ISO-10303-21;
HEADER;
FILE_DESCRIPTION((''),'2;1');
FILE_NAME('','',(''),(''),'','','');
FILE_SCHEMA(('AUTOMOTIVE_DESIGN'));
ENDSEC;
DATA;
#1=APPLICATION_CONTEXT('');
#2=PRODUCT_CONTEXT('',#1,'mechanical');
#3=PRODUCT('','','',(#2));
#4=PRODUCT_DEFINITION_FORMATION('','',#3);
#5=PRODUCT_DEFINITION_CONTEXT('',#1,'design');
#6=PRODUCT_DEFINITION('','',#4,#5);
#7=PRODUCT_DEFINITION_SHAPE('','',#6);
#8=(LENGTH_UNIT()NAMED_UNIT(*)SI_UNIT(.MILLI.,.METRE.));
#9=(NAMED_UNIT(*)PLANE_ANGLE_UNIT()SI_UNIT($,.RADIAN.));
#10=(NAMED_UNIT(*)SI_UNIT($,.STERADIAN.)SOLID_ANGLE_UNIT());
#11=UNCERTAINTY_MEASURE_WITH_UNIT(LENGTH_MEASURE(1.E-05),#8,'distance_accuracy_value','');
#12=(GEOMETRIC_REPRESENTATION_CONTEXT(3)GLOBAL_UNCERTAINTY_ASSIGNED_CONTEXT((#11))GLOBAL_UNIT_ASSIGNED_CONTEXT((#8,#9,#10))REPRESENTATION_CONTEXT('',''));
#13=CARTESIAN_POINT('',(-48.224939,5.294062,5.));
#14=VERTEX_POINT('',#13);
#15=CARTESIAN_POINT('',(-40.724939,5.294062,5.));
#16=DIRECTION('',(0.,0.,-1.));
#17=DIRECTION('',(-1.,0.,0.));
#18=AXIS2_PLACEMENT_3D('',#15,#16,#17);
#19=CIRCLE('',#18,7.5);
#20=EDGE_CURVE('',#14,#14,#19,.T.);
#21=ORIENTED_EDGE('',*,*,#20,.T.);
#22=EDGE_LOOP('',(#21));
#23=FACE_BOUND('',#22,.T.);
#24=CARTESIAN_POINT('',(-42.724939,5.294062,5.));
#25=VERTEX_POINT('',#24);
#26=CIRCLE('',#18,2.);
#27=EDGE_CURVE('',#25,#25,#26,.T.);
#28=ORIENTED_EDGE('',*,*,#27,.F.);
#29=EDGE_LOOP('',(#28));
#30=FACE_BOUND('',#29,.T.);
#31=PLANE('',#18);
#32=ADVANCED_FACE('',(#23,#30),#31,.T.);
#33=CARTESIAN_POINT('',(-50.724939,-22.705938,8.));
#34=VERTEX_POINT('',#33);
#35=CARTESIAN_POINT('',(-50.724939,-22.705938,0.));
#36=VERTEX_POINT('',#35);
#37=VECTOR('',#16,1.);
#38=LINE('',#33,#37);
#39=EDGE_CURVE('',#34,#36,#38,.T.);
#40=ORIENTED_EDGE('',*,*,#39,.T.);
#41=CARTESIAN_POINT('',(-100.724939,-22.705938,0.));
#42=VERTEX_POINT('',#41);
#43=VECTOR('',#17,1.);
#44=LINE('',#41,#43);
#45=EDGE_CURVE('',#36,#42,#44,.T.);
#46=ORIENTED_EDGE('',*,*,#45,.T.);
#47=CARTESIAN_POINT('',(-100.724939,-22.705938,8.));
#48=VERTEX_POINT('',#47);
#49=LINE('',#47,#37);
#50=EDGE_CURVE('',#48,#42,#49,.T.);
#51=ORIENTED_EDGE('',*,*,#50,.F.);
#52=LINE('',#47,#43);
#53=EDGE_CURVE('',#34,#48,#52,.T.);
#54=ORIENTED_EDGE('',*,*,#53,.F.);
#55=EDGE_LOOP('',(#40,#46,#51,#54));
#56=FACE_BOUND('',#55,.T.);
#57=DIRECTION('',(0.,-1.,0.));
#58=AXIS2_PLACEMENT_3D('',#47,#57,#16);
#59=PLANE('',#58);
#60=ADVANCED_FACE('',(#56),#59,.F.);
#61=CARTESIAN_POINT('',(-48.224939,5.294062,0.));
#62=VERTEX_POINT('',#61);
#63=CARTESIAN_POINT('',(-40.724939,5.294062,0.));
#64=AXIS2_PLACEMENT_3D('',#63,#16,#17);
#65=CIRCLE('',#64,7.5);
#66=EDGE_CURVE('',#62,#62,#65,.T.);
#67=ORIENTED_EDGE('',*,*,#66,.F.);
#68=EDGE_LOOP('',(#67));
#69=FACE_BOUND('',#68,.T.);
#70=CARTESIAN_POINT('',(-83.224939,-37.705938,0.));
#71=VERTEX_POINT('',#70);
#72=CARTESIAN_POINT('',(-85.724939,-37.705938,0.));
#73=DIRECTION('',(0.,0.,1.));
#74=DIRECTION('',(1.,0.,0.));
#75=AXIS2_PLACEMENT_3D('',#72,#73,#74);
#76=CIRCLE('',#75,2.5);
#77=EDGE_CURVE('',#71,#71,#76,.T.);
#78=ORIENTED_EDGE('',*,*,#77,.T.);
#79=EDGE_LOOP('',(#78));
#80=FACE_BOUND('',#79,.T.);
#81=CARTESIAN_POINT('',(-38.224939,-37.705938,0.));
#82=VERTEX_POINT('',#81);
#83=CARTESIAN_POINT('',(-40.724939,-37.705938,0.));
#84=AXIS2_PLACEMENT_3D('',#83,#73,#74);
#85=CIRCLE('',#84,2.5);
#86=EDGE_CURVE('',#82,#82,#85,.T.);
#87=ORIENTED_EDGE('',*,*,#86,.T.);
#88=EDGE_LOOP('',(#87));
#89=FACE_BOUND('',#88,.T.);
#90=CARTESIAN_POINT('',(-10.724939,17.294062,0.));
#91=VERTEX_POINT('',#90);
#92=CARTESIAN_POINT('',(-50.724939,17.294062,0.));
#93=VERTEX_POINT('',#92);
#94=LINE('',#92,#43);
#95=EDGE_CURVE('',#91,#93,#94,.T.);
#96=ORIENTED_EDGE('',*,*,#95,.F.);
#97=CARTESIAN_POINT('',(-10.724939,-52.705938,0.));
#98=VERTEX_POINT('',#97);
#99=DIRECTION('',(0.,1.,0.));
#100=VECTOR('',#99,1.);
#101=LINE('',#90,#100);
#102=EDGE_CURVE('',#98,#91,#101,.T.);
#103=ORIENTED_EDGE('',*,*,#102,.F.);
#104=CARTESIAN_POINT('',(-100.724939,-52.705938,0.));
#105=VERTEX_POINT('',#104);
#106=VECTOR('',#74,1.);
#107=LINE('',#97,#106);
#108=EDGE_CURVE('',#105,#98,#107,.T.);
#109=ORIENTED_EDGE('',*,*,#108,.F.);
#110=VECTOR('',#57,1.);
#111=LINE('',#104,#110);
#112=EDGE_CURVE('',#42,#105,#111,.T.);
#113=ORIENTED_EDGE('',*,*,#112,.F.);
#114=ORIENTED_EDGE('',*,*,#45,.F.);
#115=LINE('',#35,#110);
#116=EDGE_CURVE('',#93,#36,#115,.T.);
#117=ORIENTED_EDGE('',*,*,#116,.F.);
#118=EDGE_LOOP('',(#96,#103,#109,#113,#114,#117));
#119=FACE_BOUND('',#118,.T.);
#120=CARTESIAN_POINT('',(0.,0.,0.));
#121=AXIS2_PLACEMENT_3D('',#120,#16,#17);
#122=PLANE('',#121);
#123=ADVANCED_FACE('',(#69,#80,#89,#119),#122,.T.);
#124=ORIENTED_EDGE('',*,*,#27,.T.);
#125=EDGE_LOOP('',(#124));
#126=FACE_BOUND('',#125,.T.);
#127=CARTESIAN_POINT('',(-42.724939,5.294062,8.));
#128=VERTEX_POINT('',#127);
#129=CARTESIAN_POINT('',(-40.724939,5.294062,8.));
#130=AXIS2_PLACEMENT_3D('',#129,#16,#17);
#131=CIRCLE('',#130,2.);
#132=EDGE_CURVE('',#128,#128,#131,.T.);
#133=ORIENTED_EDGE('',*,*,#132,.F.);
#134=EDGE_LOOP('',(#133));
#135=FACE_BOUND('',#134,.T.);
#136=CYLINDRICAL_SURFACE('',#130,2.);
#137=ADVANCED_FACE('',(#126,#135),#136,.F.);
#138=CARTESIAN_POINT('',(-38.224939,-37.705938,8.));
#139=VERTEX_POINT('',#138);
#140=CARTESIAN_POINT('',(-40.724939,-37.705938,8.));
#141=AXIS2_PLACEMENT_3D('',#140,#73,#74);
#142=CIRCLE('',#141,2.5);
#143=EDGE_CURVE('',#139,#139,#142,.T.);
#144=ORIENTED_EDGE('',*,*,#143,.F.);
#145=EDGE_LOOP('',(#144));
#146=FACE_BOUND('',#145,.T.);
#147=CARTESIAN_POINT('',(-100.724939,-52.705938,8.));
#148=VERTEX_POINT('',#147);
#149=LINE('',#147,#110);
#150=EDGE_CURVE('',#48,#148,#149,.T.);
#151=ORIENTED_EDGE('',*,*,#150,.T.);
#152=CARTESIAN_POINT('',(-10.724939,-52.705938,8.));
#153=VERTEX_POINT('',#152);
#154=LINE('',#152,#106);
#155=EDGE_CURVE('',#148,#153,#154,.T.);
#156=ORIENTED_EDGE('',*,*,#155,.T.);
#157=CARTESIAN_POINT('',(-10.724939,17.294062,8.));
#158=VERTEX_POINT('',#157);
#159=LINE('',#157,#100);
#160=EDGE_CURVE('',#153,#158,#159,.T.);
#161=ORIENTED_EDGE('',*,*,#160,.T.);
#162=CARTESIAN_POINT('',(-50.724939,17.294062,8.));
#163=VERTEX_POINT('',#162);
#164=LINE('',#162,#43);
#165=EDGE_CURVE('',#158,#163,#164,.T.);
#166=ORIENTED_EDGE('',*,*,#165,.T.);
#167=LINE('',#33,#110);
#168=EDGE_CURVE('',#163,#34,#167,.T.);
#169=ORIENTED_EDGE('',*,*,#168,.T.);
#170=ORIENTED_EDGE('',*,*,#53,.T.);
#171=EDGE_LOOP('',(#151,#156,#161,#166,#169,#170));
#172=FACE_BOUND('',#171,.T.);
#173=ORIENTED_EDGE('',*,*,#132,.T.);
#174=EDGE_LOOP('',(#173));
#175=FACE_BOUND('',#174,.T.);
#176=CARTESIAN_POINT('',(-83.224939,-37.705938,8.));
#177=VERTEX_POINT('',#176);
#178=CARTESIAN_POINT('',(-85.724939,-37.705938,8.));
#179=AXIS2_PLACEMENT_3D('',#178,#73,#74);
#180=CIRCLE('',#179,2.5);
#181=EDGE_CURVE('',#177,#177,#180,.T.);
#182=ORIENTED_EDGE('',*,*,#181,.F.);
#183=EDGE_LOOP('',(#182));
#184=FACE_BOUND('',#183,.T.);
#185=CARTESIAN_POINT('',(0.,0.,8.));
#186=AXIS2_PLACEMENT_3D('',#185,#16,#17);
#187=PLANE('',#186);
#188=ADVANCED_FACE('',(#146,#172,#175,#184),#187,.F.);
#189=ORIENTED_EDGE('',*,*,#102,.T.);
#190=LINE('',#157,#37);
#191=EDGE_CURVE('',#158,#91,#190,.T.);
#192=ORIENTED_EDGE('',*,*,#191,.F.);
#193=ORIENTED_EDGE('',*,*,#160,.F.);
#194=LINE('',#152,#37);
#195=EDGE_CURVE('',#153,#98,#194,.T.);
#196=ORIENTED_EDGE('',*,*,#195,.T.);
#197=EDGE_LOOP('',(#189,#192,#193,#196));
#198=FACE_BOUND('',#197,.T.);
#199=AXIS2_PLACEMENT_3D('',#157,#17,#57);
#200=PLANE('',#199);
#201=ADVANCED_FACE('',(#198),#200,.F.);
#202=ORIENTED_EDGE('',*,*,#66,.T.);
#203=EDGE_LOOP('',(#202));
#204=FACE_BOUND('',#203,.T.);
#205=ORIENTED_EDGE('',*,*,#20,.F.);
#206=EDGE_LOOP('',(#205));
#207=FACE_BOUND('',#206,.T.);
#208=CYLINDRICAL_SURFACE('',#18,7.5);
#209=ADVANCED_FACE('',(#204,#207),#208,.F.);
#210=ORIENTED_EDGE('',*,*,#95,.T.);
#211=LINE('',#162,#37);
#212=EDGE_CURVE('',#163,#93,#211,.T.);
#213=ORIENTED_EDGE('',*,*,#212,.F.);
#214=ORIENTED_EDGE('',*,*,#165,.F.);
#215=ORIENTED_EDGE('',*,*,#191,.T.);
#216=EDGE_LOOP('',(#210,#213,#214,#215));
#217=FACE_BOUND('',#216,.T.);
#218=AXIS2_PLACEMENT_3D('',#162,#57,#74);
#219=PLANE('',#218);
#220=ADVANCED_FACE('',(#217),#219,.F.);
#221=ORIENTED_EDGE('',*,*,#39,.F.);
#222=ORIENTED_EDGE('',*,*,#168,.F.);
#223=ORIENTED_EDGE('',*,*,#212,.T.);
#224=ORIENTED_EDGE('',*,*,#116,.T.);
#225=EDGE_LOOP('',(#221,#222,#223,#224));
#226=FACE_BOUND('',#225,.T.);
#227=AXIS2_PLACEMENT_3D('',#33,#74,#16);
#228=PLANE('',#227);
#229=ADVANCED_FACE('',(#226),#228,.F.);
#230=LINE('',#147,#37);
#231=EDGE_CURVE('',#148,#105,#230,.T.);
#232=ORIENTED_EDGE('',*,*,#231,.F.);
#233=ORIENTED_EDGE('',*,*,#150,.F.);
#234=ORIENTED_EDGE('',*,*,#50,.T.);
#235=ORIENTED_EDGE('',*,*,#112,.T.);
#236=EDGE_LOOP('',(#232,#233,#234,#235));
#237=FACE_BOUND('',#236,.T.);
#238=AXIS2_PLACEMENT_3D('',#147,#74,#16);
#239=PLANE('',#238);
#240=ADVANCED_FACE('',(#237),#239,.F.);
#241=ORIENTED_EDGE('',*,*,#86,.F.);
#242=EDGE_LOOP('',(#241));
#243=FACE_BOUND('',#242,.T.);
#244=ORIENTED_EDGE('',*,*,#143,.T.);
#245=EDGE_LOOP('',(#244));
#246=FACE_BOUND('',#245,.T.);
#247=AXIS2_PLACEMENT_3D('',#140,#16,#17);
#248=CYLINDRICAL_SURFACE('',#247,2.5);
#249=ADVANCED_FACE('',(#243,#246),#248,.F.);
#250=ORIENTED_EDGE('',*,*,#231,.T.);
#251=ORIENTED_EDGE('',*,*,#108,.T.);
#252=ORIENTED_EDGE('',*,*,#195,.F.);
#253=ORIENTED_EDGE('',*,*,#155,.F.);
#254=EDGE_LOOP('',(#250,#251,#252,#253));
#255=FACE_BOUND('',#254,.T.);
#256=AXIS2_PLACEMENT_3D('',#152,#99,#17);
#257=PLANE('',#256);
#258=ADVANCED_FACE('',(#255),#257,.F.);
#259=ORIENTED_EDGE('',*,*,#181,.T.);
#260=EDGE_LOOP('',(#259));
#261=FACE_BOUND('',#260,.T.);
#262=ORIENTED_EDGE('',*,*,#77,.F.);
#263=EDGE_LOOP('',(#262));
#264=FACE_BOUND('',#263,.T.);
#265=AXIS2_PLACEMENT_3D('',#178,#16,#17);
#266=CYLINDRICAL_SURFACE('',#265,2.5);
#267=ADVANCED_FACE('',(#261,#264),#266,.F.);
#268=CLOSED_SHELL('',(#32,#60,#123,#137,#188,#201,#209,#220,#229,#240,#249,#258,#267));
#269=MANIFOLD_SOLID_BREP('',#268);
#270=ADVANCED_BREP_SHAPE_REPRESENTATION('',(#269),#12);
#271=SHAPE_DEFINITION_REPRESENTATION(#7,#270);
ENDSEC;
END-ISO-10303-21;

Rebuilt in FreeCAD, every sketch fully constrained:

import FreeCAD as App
import Part
import Sketcher
from FreeCAD import Vector
Q = App.Units.Quantity

doc = App.newDocument("Part")
body = doc.addObject("PartDesign::Body", "Body")

# Sketch on XY plane
sketch1 = body.newObject("Sketcher::SketchObject", "Sketch")
sketch1.AttachmentSupport = (doc.getObject("XY_Plane"), [""])
sketch1.MapMode = "FlatFace"
sketch1.addGeometry(Part.LineSegment(Vector(-10.7, 17.3, 0), Vector(-50.7, 17.3, 0)), False)
sketch1.addGeometry(Part.LineSegment(Vector(-50.7, 17.3, 0), Vector(-50.7, -22.7, 0)), False)
sketch1.addGeometry(Part.LineSegment(Vector(-50.7, -22.7, 0), Vector(-100.7, -22.7, 0)), False)
sketch1.addGeometry(Part.LineSegment(Vector(-100.7, -22.7, 0), Vector(-100.7, -52.7, 0)), False)
sketch1.addGeometry(Part.LineSegment(Vector(-100.7, -52.7, 0), Vector(-10.7, -52.7, 0)), False)
sketch1.addGeometry(Part.LineSegment(Vector(-10.7, -52.7, 0), Vector(-10.7, 17.3, 0)), False)
sketch1.addGeometry(Part.Circle(Vector(-40.7, -37.7, 0), Vector(0, 0, 1), 2.5), False)
sketch1.addGeometry(Part.Circle(Vector(-85.7, -37.7, 0), Vector(0, 0, 1), 2.5), False)
sketch1.addConstraint(Sketcher.Constraint("Coincident", 0, 2, 1, 1))
sketch1.addConstraint(Sketcher.Constraint("Coincident", 1, 2, 2, 1))
sketch1.addConstraint(Sketcher.Constraint("Coincident", 2, 2, 3, 1))
sketch1.addConstraint(Sketcher.Constraint("Coincident", 3, 2, 4, 1))
sketch1.addConstraint(Sketcher.Constraint("Coincident", 4, 2, 5, 1))
sketch1.addConstraint(Sketcher.Constraint("Coincident", 5, 2, 0, 1))
sketch1.addConstraint(Sketcher.Constraint("Horizontal", 0))
sketch1.addConstraint(Sketcher.Constraint("Vertical", 1))
sketch1.addConstraint(Sketcher.Constraint("Horizontal", 2))
sketch1.addConstraint(Sketcher.Constraint("Vertical", 3))
sketch1.addConstraint(Sketcher.Constraint("Horizontal", 4))
sketch1.addConstraint(Sketcher.Constraint("Vertical", 5))
sketch1.addConstraint(Sketcher.Constraint("Equal", 6, 7))
sketch1.addConstraint(Sketcher.Constraint("Horizontal", 6, 3, 7, 3))
sketch1.addConstraint(Sketcher.Constraint("Equal", 0, 1))
sketch1.addConstraint(Sketcher.Constraint("Diameter", 6, Q("5 mm")))
sketch1.addConstraint(Sketcher.Constraint("DistanceX", 0, 2, 0, 1, Q("40 mm")))
sketch1.addConstraint(Sketcher.Constraint("DistanceX", 2, 2, 2, 1, Q("50 mm")))
sketch1.addConstraint(Sketcher.Constraint("DistanceY", 3, 2, 3, 1, Q("30 mm")))
sketch1.addConstraint(Sketcher.Constraint("DistanceX", 7, 3, 6, 3, Q("45 mm")))
sketch1.addConstraint(Sketcher.Constraint("DistanceX", 0, 2, 6, 3, Q("10 mm")))
sketch1.addConstraint(Sketcher.Constraint("DistanceY", 6, 3, 0, 2, Q("55 mm")))
sketch1.addConstraint(Sketcher.Constraint("DistanceX", 6, 3, -1, 1, Q("40.724939 mm")))
sketch1.addConstraint(Sketcher.Constraint("DistanceY", 6, 3, -1, 1, Q("37.705938 mm")))
pad1 = body.newObject("PartDesign::Pad", "Pad")
pad1.Profile = sketch1
pad1.Length = 8

# Sketch on XY plane
sketch2 = body.newObject("Sketcher::SketchObject", "Sketch001")
sketch2.AttachmentSupport = (doc.getObject("XY_Plane"), [""])
sketch2.MapMode = "FlatFace"
sketch2.addGeometry(Part.Circle(Vector(-41, 5, 0), Vector(0, 0, 1), 8), False)
sketch2.addConstraint(Sketcher.Constraint("Diameter", 0, Q("15 mm")))
sketch2.addConstraint(Sketcher.Constraint("DistanceX", 0, 3, -1, 1, Q("40.724939 mm")))
sketch2.addConstraint(Sketcher.Constraint("DistanceY", -1, 1, 0, 3, Q("5.294062 mm")))
pocket1 = body.newObject("PartDesign::Pocket", "Pocket")
pocket1.Profile = sketch2
pocket1.Length = 5
pocket1.Reversed = True

# Sketch on XY plane
sketch3 = body.newObject("Sketcher::SketchObject", "Sketch002")
sketch3.AttachmentSupport = (doc.getObject("XY_Plane"), [""])
sketch3.MapMode = "FlatFace"
sketch3.AttachmentOffset = App.Placement(Vector(0, 0, 5), App.Rotation())
sketch3.addGeometry(Part.Circle(Vector(-40.7, 5.3, 0), Vector(0, 0, 1), 2), False)
sketch3.addConstraint(Sketcher.Constraint("Diameter", 0, Q("4 mm")))
sketch3.addConstraint(Sketcher.Constraint("DistanceX", 0, 3, -1, 1, Q("40.724939 mm")))
sketch3.addConstraint(Sketcher.Constraint("DistanceY", -1, 1, 0, 3, Q("5.294062 mm")))
pocket2 = body.newObject("PartDesign::Pocket", "Pocket001")
pocket2.Profile = sketch3
pocket2.Type = "ThroughAll"
pocket2.Reversed = True

doc.recompute()
